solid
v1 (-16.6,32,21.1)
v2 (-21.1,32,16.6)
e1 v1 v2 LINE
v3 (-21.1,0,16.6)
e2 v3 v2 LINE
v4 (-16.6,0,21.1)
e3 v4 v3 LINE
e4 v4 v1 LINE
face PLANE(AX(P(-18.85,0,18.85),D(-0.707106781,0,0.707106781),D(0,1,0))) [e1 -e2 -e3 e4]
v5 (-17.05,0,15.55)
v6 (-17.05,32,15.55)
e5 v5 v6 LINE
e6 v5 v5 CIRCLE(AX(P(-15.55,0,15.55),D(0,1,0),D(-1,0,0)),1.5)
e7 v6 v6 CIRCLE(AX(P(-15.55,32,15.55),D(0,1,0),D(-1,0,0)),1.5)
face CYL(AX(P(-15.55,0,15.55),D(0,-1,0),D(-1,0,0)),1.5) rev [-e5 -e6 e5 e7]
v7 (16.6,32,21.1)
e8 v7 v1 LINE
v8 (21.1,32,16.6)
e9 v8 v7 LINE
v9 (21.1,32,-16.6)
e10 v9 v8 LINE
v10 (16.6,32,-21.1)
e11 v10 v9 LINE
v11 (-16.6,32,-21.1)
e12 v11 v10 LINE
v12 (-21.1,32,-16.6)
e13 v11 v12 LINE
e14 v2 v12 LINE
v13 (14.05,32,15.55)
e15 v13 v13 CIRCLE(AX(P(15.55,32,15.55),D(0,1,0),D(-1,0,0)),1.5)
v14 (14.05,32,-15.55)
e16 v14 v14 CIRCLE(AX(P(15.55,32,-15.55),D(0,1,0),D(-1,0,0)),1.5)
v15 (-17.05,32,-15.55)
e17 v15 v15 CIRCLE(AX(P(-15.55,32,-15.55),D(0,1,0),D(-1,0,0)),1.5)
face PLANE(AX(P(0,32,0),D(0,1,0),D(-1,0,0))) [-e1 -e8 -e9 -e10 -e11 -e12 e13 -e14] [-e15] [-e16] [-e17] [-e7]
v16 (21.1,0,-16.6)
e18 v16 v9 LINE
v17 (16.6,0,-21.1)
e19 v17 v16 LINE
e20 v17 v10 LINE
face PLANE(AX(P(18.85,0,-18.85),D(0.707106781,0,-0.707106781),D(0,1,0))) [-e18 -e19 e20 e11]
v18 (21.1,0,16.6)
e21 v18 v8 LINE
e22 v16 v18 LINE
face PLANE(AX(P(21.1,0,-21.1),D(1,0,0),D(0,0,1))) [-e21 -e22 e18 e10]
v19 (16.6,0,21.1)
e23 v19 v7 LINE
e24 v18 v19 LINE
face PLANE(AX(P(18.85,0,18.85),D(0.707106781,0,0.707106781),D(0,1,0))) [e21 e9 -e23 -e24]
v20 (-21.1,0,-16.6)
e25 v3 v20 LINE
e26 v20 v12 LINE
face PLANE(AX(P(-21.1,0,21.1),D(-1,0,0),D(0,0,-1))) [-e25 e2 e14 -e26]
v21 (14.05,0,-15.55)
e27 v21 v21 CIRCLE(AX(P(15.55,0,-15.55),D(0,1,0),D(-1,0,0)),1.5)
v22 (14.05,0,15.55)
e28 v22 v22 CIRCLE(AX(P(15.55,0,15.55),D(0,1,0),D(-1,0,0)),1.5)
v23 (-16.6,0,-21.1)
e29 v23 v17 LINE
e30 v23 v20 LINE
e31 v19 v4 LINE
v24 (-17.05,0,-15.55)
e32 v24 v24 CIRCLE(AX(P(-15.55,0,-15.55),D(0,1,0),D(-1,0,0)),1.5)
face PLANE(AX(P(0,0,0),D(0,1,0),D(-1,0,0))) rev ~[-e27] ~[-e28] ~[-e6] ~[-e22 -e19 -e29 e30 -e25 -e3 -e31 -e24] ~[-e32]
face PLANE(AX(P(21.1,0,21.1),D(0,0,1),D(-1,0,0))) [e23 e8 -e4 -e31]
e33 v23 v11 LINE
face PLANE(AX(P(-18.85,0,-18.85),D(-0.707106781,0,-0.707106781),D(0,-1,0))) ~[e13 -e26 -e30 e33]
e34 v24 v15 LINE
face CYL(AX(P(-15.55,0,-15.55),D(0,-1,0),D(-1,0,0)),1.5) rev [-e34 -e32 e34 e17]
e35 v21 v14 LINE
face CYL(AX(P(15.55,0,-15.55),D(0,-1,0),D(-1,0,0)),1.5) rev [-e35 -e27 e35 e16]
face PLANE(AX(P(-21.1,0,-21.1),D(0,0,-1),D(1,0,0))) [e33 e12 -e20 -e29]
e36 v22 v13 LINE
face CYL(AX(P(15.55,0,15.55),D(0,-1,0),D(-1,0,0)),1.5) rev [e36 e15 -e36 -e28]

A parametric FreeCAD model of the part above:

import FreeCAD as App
import Part
import Sketcher

V = App.Vector


def edges_at(feature, points):
    """Names of the edges that pass closest to the given points."""
    edges = feature.Shape.Edges
    near = lambda p: min(range(len(edges)), key=lambda i: edges[i].distToShape(Part.Vertex(*p))[0])
    return sorted({f"Edge{near(p) + 1}" for p in points})

doc = App.newDocument("Part")
params = doc.addObject("Spreadsheet::Sheet", "Params")
for row, (alias, value) in enumerate([
    ("sketch1_diameter", "3 mm"),
    ("sketch1_width", "42.2 mm"),
    ("pad1_length", "32 mm"),
    ("chamfer_size", "4.5 mm"),
], start=1):
    params.set(f"A{row}", alias)
    params.set(f"B{row}", "=" + value)
    params.setAlias(f"B{row}", alias)

body = doc.addObject("PartDesign::Body", "Body")

sketch1 = body.newObject("Sketcher::SketchObject", "Sketch")
sketch1.AttachmentSupport = (doc.getObject("XZ_Plane"), [""])
sketch1.MapMode = "FlatFace"
sketch1.addGeometry([
    Part.LineSegment(V(21.1, -21.1, 0), V(-21.1, -21.1, 0)),
    Part.LineSegment(V(-21.1, -21.1, 0), V(-21.1, 21.1, 0)),
    Part.LineSegment(V(-21.1, 21.1, 0), V(21.1, 21.1, 0)),
    Part.LineSegment(V(21.1, 21.1, 0), V(21.1, -21.1, 0)),
    Part.Circle(V(15.6, -15.6, 0), V(0, 0, 1), 1.5),
    Part.Circle(V(-15.6, -15.6, 0), V(0, 0, 1), 1.5),
    Part.Circle(V(15.6, 15.6, 0), V(0, 0, 1), 1.5),
    Part.Circle(V(-15.6, 15.6, 0), V(0, 0, 1), 1.5),
], False)
sketch1.addConstraint([
    Sketcher.Constraint("Coincident", 0, 2, 1, 1),
    Sketcher.Constraint("Coincident", 1, 2, 2, 1),
    Sketcher.Constraint("Coincident", 2, 2, 3, 1),
    Sketcher.Constraint("Coincident", 3, 2, 0, 1),
    Sketcher.Constraint("Horizontal", 0),
    Sketcher.Constraint("Vertical", 1),
    Sketcher.Constraint("Horizontal", 2),
    Sketcher.Constraint("Vertical", 3),
    Sketcher.Constraint("Equal", 4, 5),
    Sketcher.Constraint("Equal", 5, 6),
    Sketcher.Constraint("Equal", 6, 7),
    Sketcher.Constraint("Symmetric", 5, 3, 6, 3, -1, 1),
    Sketcher.Constraint("Symmetric", 4, 3, 7, 3, -1, 1),
    Sketcher.Constraint("Symmetric", 0, 2, 2, 2, -1, 1),
    Sketcher.Constraint("Symmetric", 4, 3, 5, 3, -2),
    Sketcher.Constraint("Equal", 2, 1),
    Sketcher.Constraint("Diameter", 4, 3.0),
    Sketcher.Constraint("DistanceX", 0, 2, 0, 1, 42.2),
    Sketcher.Constraint("DistanceX", 5, 3, 4, 3, 31.1),
    Sketcher.Constraint("DistanceY", 4, 3, 6, 3, 31.1),
])
sketch1.setExpression("Constraints[16]", "Params.sketch1_diameter")
sketch1.setExpression("Constraints[17]", "Params.sketch1_width")
pad1 = body.newObject("PartDesign::Pad", "Pad")
pad1.Profile = sketch1
pad1.setExpression("Length", "Params.pad1_length")
pad1.Reversed = True
doc.recompute()

chamfer = body.newObject("PartDesign::Chamfer", "Chamfer")
chamfer.Base = (pad1, edges_at(pad1, [
    (21.1, 16, -21.1),
    (21.1, 16, 21.1),
    (-21.1, 16, 21.1),
    (-21.1, 16, -21.1),
]))
chamfer.setExpression("Size", "Params.chamfer_size")

doc.recompute()
